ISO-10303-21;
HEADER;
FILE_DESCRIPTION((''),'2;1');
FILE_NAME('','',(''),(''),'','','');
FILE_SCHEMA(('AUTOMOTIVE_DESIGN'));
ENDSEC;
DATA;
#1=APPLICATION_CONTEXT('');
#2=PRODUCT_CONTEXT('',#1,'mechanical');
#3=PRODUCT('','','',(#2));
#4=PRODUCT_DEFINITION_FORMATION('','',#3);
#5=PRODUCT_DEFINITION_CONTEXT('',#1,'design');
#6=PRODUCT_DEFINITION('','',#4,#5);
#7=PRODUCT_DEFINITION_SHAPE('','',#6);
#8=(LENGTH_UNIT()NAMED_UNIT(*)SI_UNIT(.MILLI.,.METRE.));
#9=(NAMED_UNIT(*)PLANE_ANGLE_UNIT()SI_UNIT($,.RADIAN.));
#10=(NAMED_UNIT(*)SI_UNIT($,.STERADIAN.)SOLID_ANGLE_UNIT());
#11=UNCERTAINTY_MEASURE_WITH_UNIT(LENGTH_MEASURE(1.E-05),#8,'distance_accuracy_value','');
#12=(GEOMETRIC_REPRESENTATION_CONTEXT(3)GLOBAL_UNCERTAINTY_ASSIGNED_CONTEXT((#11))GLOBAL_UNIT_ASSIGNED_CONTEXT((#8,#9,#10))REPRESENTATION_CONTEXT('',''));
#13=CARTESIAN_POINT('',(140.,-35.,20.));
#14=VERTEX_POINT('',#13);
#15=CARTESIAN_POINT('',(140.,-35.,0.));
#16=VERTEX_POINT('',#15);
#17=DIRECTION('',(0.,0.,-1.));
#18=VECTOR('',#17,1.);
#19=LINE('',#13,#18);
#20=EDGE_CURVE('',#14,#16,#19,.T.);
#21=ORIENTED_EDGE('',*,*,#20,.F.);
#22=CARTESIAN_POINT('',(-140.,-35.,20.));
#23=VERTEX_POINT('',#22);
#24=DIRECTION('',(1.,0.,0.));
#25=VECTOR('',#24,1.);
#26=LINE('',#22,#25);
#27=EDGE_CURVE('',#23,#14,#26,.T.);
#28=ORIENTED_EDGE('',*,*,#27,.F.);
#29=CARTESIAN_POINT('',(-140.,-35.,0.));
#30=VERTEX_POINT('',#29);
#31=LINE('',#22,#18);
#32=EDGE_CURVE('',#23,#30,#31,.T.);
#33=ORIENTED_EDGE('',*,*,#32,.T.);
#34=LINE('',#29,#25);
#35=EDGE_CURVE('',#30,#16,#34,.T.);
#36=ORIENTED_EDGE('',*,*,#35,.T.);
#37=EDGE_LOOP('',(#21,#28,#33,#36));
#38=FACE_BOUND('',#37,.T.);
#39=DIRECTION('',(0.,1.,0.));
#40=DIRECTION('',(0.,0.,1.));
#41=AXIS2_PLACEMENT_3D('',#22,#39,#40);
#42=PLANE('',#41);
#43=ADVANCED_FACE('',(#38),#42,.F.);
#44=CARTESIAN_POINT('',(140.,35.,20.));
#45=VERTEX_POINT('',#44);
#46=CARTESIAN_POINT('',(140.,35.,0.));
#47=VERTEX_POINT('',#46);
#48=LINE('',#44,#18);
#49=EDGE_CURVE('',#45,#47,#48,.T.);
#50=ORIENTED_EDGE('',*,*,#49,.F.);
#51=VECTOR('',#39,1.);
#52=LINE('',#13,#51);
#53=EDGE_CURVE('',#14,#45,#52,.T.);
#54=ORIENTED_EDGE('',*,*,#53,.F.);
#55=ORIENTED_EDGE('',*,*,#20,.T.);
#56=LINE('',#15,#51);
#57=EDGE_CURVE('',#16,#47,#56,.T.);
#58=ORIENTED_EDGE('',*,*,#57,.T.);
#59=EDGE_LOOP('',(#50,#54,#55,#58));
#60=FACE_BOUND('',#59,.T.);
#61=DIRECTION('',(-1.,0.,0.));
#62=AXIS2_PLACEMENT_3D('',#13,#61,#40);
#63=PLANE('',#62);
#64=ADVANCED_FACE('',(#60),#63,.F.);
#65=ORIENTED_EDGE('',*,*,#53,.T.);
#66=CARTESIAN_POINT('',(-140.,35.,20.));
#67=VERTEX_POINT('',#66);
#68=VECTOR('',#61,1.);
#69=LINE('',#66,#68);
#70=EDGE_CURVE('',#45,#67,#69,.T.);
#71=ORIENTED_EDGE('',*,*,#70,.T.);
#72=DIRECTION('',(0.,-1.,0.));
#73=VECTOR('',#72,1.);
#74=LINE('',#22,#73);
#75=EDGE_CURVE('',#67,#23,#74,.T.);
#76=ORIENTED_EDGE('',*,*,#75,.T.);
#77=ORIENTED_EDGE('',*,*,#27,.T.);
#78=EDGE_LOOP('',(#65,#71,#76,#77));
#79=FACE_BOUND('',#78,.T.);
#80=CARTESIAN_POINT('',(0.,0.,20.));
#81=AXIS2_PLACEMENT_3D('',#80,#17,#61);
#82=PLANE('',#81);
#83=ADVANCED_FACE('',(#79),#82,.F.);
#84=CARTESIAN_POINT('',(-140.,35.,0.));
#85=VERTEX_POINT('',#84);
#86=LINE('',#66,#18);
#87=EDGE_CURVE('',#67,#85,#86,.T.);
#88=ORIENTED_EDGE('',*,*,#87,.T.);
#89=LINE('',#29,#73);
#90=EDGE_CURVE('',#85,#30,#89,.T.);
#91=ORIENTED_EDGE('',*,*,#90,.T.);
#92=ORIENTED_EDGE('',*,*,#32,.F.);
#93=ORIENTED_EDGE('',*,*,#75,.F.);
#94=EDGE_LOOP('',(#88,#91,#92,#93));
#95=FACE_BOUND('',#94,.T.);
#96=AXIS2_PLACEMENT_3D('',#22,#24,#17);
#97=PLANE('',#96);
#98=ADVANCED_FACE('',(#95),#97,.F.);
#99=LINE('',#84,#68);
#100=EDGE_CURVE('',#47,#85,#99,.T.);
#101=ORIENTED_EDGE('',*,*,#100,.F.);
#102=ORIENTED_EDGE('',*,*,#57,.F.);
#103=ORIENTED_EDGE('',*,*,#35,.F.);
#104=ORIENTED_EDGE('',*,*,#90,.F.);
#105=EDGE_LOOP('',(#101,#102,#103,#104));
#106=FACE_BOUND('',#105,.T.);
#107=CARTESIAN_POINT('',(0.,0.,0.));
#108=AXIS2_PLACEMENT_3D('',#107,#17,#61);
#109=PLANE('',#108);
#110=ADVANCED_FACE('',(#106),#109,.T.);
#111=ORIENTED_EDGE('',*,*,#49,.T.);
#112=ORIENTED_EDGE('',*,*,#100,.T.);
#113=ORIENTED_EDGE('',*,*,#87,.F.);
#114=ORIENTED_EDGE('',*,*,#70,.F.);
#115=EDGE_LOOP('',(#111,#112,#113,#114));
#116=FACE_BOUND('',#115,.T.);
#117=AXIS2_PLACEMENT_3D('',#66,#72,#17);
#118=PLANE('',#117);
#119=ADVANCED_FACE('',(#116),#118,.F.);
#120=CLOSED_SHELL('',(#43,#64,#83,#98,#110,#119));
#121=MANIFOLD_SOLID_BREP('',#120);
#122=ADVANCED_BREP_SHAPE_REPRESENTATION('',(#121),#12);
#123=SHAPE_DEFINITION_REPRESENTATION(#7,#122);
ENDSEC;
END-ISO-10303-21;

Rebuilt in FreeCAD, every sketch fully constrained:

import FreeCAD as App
import Part
import Sketcher

V = App.Vector

doc = App.newDocument("Part")
body = doc.addObject("PartDesign::Body", "Body")

# Sketch on XY plane
sketch1 = body.newObject("Sketcher::SketchObject", "Sketch")
sketch1.AttachmentSupport = (doc.getObject("XY_Plane"), [""])
sketch1.MapMode = "FlatFace"
sketch1.addGeometry([
    Part.LineSegment(V(-140, 35, 0), V(-140, -35, 0)),
    Part.LineSegment(V(-140, -35, 0), V(140, -35, 0)),
    Part.LineSegment(V(140, -35, 0), V(140, 35, 0)),
    Part.LineSegment(V(140, 35, 0), V(-140, 35, 0)),
], False)
sketch1.addConstraint([
    Sketcher.Constraint("Coincident", 0, 2, 1, 1),
    Sketcher.Constraint("Coincident", 1, 2, 2, 1),
    Sketcher.Constraint("Coincident", 2, 2, 3, 1),
    Sketcher.Constraint("Coincident", 3, 2, 0, 1),
    Sketcher.Constraint("Vertical", 0),
    Sketcher.Constraint("Horizontal", 1),
    Sketcher.Constraint("Vertical", 2),
    Sketcher.Constraint("Horizontal", 3),
    Sketcher.Constraint("Symmetric", 0, 2, 2, 2, -1, 1),
    Sketcher.Constraint("DistanceX", 1, 1, 1, 2, 280.0),
    Sketcher.Constraint("DistanceY", 0, 2, 0, 1, 70.0),
])
pad1 = body.newObject("PartDesign::Pad", "Pad")
pad1.Profile = sketch1
pad1.Length = 20

doc.recompute()
